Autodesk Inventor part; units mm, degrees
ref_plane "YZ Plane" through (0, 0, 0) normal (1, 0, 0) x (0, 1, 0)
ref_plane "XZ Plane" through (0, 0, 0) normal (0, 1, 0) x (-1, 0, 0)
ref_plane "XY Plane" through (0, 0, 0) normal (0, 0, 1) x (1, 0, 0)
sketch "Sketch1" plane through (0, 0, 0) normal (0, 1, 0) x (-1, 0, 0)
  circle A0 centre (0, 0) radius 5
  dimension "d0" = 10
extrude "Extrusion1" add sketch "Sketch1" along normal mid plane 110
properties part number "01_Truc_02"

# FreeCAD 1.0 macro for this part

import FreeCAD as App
import Part
import Sketcher
from FreeCAD import Vector

doc = App.newDocument("Part")
body = doc.addObject("PartDesign::Body", "Body")

sketch1 = doc.addObject("Sketcher::SketchObject", "Sketch")
body.addObject(sketch1)
sketch1.AttachmentSupport = (doc.XZ_Plane, [""])
sketch1.MapMode = "FlatFace"
sketch1.addGeometry(Part.Circle(Vector(0, 0, 0), Vector(0, 0, 1), 5), False)
sketch1.addConstraint([
    Sketcher.Constraint("Coincident", 0, 3, -1, 1),
    Sketcher.Constraint("Diameter", 0, 10.0),
])
pad1 = doc.addObject("PartDesign::Pad", "Pad")
body.addObject(pad1)
pad1.Profile = sketch1
pad1.Length = 110
pad1.Midplane = True

doc.recompute()
